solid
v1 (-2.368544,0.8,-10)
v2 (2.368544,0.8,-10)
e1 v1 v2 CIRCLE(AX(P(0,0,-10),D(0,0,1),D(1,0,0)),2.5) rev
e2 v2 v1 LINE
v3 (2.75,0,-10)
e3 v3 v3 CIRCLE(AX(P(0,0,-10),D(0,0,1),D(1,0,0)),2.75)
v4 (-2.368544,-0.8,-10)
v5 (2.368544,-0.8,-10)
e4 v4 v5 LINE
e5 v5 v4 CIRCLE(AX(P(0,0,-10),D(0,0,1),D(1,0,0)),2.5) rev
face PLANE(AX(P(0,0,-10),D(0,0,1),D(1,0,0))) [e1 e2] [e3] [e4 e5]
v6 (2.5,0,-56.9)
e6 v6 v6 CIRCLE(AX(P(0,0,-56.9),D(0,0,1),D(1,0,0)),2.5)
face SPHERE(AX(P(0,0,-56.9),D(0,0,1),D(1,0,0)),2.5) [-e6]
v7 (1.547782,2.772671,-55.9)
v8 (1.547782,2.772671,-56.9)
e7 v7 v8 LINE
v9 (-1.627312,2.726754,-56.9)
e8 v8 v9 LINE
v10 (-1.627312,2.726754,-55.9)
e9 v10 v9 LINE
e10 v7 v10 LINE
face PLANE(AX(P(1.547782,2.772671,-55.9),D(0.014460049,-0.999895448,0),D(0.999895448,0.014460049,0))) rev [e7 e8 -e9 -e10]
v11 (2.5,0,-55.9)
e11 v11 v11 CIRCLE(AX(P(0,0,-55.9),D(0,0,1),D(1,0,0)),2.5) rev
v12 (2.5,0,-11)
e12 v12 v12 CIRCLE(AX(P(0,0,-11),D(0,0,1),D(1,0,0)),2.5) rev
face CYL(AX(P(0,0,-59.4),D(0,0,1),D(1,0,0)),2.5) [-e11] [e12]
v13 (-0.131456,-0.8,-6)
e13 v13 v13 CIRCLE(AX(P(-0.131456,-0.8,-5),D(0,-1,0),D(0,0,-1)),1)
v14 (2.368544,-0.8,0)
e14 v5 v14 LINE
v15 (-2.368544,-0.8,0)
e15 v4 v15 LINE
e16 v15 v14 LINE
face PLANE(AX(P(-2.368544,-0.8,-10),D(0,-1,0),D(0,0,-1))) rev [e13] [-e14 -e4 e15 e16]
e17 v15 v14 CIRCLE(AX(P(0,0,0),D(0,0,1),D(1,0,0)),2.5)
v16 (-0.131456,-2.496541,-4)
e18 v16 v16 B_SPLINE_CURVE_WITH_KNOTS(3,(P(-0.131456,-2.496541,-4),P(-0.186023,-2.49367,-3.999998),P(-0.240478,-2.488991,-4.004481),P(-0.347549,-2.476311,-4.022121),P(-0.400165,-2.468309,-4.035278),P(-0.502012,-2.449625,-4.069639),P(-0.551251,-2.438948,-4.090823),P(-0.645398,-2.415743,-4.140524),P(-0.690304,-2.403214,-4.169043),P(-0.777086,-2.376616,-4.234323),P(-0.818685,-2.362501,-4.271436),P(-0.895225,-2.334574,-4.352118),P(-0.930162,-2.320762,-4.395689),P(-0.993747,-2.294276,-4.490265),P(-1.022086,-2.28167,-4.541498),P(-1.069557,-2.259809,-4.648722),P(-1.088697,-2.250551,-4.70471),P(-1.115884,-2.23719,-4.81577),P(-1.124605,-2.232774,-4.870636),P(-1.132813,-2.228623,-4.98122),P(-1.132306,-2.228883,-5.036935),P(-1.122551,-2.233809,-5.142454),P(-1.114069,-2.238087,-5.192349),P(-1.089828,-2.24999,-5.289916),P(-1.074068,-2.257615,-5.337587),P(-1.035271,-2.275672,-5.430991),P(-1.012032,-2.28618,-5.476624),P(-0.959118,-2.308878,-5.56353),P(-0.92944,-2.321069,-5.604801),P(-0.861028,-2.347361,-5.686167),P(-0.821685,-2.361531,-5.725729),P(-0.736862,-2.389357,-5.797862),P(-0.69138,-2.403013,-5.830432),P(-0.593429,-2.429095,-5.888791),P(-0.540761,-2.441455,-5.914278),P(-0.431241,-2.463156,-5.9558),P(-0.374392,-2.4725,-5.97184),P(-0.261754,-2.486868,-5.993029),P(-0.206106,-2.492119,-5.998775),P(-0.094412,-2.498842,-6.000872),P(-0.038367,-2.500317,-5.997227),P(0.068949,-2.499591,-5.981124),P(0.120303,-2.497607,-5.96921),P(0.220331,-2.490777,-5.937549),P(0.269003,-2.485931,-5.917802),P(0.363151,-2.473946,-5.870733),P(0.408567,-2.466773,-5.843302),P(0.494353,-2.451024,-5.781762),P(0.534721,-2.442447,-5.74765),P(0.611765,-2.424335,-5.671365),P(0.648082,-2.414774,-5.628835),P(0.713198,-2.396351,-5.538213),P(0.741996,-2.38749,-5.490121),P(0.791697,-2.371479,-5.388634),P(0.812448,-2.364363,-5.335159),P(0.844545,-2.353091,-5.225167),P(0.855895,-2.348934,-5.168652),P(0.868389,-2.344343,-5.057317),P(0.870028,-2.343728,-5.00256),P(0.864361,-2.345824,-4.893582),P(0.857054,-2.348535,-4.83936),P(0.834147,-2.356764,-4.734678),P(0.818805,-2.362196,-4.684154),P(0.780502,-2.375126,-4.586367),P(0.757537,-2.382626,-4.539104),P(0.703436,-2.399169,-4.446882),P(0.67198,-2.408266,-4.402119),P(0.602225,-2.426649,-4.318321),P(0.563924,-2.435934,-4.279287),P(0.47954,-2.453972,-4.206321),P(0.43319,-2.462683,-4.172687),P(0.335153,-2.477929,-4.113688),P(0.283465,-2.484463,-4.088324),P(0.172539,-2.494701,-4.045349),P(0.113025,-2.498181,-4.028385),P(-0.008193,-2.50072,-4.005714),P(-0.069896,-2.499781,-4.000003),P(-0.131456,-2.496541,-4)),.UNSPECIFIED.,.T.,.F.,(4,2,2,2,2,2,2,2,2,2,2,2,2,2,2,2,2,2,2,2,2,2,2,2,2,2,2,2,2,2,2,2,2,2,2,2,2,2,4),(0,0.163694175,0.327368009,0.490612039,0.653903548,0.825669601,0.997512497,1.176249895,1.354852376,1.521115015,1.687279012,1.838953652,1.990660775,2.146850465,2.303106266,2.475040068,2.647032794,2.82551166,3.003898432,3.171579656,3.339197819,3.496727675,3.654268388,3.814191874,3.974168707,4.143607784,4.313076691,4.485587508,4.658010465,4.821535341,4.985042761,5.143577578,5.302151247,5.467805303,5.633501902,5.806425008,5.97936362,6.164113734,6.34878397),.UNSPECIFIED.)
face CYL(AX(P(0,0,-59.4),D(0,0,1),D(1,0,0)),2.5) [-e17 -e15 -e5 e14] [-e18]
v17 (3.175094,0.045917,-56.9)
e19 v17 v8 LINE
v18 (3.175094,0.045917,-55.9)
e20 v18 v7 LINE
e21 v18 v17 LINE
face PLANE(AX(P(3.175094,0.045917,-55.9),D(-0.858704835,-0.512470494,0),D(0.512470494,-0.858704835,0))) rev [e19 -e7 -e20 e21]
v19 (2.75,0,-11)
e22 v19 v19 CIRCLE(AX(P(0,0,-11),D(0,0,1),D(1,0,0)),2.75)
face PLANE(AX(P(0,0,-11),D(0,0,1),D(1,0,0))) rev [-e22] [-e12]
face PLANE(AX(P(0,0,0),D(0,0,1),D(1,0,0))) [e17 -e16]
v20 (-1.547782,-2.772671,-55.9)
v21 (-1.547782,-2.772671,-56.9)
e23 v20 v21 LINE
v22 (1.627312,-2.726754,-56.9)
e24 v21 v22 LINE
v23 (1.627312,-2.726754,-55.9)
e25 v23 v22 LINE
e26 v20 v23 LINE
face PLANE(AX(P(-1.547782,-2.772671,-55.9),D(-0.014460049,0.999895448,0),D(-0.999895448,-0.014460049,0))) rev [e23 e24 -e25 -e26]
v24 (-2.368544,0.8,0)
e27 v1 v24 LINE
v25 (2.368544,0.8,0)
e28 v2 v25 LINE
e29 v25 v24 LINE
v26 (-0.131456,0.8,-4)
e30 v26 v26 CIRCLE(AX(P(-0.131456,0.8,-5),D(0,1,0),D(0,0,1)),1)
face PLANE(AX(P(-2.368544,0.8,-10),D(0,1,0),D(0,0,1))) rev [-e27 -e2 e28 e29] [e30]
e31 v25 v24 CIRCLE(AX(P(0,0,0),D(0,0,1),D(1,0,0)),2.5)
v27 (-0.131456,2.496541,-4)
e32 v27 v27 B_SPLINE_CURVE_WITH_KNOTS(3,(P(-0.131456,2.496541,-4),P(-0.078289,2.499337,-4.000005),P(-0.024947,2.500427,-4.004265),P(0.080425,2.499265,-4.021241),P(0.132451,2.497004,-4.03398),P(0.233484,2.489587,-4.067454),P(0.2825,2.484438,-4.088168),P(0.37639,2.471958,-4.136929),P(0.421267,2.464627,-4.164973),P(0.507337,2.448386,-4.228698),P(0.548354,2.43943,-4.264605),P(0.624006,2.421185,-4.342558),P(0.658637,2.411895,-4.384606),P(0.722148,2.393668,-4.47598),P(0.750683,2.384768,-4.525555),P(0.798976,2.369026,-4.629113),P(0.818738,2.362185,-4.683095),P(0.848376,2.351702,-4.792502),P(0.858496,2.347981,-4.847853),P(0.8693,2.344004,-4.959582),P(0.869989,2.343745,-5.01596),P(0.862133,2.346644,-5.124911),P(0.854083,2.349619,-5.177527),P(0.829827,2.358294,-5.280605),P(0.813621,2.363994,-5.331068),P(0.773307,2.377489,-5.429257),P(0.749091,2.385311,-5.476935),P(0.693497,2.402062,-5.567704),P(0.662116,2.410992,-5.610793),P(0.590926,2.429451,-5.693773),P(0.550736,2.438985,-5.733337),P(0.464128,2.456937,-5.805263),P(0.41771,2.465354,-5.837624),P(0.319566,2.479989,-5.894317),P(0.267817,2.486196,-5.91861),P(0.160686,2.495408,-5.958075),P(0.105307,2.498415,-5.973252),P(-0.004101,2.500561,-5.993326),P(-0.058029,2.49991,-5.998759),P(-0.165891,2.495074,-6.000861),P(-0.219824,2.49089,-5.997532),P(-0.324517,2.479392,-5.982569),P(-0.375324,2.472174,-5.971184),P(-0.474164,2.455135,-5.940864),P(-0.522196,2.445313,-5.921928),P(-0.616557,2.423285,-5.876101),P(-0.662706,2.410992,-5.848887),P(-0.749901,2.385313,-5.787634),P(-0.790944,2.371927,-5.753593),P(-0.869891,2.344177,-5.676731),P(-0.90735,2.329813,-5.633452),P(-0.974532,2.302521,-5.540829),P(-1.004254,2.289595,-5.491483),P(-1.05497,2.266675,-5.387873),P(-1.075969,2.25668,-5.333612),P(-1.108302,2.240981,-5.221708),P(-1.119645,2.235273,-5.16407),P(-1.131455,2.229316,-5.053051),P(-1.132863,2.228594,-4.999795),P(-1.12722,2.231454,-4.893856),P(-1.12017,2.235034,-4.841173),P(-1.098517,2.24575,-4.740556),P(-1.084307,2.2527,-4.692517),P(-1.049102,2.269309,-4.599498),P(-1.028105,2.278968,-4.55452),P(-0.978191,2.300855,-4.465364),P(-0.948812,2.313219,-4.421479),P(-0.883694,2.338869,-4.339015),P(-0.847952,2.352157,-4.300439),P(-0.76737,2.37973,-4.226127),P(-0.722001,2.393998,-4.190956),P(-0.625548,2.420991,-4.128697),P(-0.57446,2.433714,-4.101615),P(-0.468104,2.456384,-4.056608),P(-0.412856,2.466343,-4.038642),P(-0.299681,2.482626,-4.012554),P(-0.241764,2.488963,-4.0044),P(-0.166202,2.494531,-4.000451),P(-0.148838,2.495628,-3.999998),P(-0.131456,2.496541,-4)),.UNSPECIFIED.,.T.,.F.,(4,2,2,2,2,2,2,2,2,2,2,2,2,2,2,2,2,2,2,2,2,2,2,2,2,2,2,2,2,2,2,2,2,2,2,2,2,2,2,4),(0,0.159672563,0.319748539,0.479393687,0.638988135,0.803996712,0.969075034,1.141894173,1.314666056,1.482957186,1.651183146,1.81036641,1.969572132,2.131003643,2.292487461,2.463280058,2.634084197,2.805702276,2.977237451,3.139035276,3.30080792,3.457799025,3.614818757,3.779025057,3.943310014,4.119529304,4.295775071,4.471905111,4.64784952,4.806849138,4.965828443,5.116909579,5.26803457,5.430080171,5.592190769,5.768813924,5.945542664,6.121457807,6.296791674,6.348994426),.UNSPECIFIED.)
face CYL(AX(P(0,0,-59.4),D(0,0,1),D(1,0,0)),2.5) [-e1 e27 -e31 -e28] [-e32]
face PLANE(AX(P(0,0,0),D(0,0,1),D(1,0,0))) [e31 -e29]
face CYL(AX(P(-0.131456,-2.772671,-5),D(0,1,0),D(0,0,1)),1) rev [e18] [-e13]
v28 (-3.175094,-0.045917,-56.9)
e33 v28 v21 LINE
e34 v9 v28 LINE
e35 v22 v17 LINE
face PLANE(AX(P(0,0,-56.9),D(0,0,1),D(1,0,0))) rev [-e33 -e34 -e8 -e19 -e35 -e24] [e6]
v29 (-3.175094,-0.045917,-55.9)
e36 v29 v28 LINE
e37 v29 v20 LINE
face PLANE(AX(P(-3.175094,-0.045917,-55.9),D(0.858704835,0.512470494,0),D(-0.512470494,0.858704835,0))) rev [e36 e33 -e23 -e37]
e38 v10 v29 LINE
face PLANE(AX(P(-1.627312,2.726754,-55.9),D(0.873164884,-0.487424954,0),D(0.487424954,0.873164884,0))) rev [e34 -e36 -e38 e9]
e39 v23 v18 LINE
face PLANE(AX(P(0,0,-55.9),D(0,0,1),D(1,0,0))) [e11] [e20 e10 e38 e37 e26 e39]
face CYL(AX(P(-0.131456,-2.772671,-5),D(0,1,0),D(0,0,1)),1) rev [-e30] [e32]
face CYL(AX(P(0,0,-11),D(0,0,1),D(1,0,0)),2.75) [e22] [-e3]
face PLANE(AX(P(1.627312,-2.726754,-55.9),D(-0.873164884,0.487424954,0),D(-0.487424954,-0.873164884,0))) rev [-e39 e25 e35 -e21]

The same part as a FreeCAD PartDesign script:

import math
import FreeCAD as App
import Part
import Sketcher


def edges_at(feature, points):
    """Names of the edges that pass closest to the given points."""
    edges = feature.Shape.Edges
    near = lambda p: min(range(len(edges)), key=lambda i: edges[i].distToShape(Part.Vertex(*p))[0])
    return sorted({f"Edge{near(p) + 1}" for p in points})


def add_polygon(sketch, points):
    """Adds a closed chain of lines whose ends are joined by coincident constraints."""
    first, n = sketch.GeometryCount, len(points)
    for a, b in zip(points, points[1:] + points[:1]):
        sketch.addGeometry(Part.LineSegment(App.Vector(*a, 0), App.Vector(*b, 0)), False)
    for i in range(n):
        sketch.addConstraint(Sketcher.Constraint("Coincident", first + i, 2, first + (i + 1) % n, 1))

doc = App.newDocument("Part")
params = doc.addObject("Spreadsheet::Sheet", "Params")
for row, (alias, value) in enumerate([
    ("sketch1_diameter", "5 mm"),
    ("pad1_length", "59.4 mm"),
    ("sketch2_radius", "2.5 mm"),
    ("pocket1_length", "10 mm"),
    ("sketch3_diameter", "5.5 mm"),
    ("pad2_length", "1 mm"),
    ("fillet_radius", "2.5 mm"),
    ("pad3_length", "1 mm"),
    ("sketch5_diameter", "2 mm"),
], start=1):
    params.set(f"A{row}", alias)
    params.set(f"B{row}", "=" + value)
    params.setAlias(f"B{row}", alias)

body = doc.addObject("PartDesign::Body", "Body")

# Sketch on XY plane
sketch1 = body.newObject("Sketcher::SketchObject", "Sketch")
sketch1.AttachmentSupport = (doc.getObject("XY_Plane"), [""])
sketch1.MapMode = "FlatFace"
sketch1.addGeometry(Part.Circle(App.Vector(0, 0, 0), App.Vector(0, 0, 1), 2.5), False)
sketch1.addConstraint(Sketcher.Constraint("Coincident", 0, 3, -1, 1))
sketch1.addConstraint(Sketcher.Constraint("Diameter", 0, 5.0))
sketch1.setExpression("Constraints[1]", "Params.sketch1_diameter")
pad1 = body.newObject("PartDesign::Pad", "Pad")
pad1.Profile = sketch1
pad1.setExpression("Length", "Params.pad1_length")
pad1.Reversed = True

# Sketch on XY plane
sketch2 = body.newObject("Sketcher::SketchObject", "Sketch001")
sketch2.AttachmentSupport = (doc.getObject("XY_Plane"), [""])
sketch2.MapMode = "FlatFace"
sketch2.addGeometry(Part.LineSegment(App.Vector(2.368544, 0.8, 0), App.Vector(-2.368544, 0.8, 0)), False)
sketch2.addGeometry(Part.ArcOfCircle(Part.Circle(App.Vector(0, 0, 0), App.Vector(0, 0, 1), 2.5), math.radians(161.337075), math.radians(198.662925)), False)
sketch2.addGeometry(Part.LineSegment(App.Vector(-2.368544, -0.8, 0), App.Vector(2.368544, -0.8, 0)), False)
sketch2.addGeometry(Part.ArcOfCircle(Part.Circle(App.Vector(0, 0, 0), App.Vector(0, 0, 1), 2.5), math.radians(-18.662925), math.radians(18.662925)), False)
sketch2.addConstraint(Sketcher.Constraint("Coincident", 0, 2, 1, 1))
sketch2.addConstraint(Sketcher.Constraint("Coincident", 1, 2, 2, 1))
sketch2.addConstraint(Sketcher.Constraint("Coincident", 2, 2, 3, 1))
sketch2.addConstraint(Sketcher.Constraint("Coincident", 3, 2, 0, 1))
sketch2.addConstraint(Sketcher.Constraint("Horizontal", 0))
sketch2.addConstraint(Sketcher.Constraint("Horizontal", 2))
sketch2.addConstraint(Sketcher.Constraint("Coincident", 1, 3, -1, 1))
sketch2.addConstraint(Sketcher.Constraint("Coincident", 3, 3, -1, 1))
sketch2.addConstraint(Sketcher.Constraint("Equal", 1, 3))
sketch2.addConstraint(Sketcher.Constraint("Vertical", 0, 2, 1, 2))
sketch2.addConstraint(Sketcher.Constraint("Radius", 1, 2.5))
sketch2.addConstraint(Sketcher.Constraint("DistanceY", -1, 1, 0, 2, 0.8))
sketch2.setExpression("Constraints[10]", "Params.sketch2_radius")
pocket1 = body.newObject("PartDesign::Pocket", "Pocket")
pocket1.Profile = sketch2
pocket1.setExpression("Length", "Params.pocket1_length")

# Sketch on XY plane
sketch3 = body.newObject("Sketcher::SketchObject", "Sketch002")
sketch3.AttachmentSupport = (doc.getObject("XY_Plane"), [""])
sketch3.MapMode = "FlatFace"
sketch3.AttachmentOffset = App.Placement(App.Vector(0, 0, -10), App.Rotation())
sketch3.addGeometry(Part.Circle(App.Vector(0, 0, 0), App.Vector(0, 0, 1), 2.75), False)
sketch3.addConstraint(Sketcher.Constraint("Coincident", 0, 3, -1, 1))
sketch3.addConstraint(Sketcher.Constraint("Diameter", 0, 5.5))
sketch3.setExpression("Constraints[1]", "Params.sketch3_diameter")
pad2 = body.newObject("PartDesign::Pad", "Pad001")
pad2.Profile = sketch3
pad2.setExpression("Length", "Params.pad2_length")
pad2.Reversed = True
doc.recompute()

fillet = body.newObject("PartDesign::Fillet", "Fillet")
fillet.Base = (pad2, edges_at(pad2, [(-2.5, 0, -59.4)]))
fillet.setExpression("Radius", "Params.fillet_radius")

# Sketch on XY plane
sketch4 = body.newObject("Sketcher::SketchObject", "Sketch003")
sketch4.AttachmentSupport = (doc.getObject("XY_Plane"), [""])
sketch4.MapMode = "FlatFace"
sketch4.AttachmentOffset = App.Placement(App.Vector(0, 0, -56.9), App.Rotation())
add_polygon(sketch4, [(1.547782, 2.772671), (-1.627312, 2.726754), (-3.175094, -0.045917), (-1.547782, -2.772671), (1.627312, -2.726754), (3.175094, 0.045917)])  # lines 0-5
sketch4.addConstraint(Sketcher.Constraint("Symmetric", 0, 2, 3, 2, -1, 1))
sketch4.addConstraint(Sketcher.Constraint("Symmetric", 1, 2, 4, 2, -1, 1))
sketch4.addConstraint(Sketcher.Constraint("Symmetric", 2, 2, 5, 2, -1, 1))
sketch4.addConstraint(Sketcher.Constraint("Equal", 0, 1))
sketch4.addConstraint(Sketcher.Constraint("Equal", 1, 2))
sketch4.addConstraint(Sketcher.Constraint("DistanceY", 2, 2, -1, 1, 2.772671))
sketch4.addConstraint(Sketcher.Constraint("DistanceY", 1, 2, 0, 2, 2.772671))
sketch4.addConstraint(Sketcher.Constraint("DistanceX", 0, 2, 2, 2, 0.07953))
sketch4.addConstraint(Sketcher.Constraint("DistanceY", 3, 2, 0, 2, 5.453508))
pad3 = body.newObject("PartDesign::Pad", "Pad002")
pad3.Profile = sketch4
pad3.setExpression("Length", "Params.pad3_length")

# Sketch on XZ plane
sketch5 = body.newObject("Sketcher::SketchObject", "Sketch004")
sketch5.AttachmentSupport = (doc.getObject("XZ_Plane"), [""])
sketch5.MapMode = "FlatFace"
sketch5.addGeometry(Part.Circle(App.Vector(-0.131456, -5, 0), App.Vector(0, 0, 1), 1), False)
sketch5.addConstraint(Sketcher.Constraint("Diameter", 0, 2.0))
sketch5.addConstraint(Sketcher.Constraint("DistanceY", 0, 3, -1, 1, 5.0))
sketch5.addConstraint(Sketcher.Constraint("DistanceX", 0, 3, -1, 1, 0.131456))
sketch5.setExpression("Constraints[0]", "Params.sketch5_diameter")
pocket2 = body.newObject("PartDesign::Pocket", "Pocket001")
pocket2.Profile = sketch5
pocket2.Type = "ThroughAll"
pocket2.Midplane = True

doc.recompute()
